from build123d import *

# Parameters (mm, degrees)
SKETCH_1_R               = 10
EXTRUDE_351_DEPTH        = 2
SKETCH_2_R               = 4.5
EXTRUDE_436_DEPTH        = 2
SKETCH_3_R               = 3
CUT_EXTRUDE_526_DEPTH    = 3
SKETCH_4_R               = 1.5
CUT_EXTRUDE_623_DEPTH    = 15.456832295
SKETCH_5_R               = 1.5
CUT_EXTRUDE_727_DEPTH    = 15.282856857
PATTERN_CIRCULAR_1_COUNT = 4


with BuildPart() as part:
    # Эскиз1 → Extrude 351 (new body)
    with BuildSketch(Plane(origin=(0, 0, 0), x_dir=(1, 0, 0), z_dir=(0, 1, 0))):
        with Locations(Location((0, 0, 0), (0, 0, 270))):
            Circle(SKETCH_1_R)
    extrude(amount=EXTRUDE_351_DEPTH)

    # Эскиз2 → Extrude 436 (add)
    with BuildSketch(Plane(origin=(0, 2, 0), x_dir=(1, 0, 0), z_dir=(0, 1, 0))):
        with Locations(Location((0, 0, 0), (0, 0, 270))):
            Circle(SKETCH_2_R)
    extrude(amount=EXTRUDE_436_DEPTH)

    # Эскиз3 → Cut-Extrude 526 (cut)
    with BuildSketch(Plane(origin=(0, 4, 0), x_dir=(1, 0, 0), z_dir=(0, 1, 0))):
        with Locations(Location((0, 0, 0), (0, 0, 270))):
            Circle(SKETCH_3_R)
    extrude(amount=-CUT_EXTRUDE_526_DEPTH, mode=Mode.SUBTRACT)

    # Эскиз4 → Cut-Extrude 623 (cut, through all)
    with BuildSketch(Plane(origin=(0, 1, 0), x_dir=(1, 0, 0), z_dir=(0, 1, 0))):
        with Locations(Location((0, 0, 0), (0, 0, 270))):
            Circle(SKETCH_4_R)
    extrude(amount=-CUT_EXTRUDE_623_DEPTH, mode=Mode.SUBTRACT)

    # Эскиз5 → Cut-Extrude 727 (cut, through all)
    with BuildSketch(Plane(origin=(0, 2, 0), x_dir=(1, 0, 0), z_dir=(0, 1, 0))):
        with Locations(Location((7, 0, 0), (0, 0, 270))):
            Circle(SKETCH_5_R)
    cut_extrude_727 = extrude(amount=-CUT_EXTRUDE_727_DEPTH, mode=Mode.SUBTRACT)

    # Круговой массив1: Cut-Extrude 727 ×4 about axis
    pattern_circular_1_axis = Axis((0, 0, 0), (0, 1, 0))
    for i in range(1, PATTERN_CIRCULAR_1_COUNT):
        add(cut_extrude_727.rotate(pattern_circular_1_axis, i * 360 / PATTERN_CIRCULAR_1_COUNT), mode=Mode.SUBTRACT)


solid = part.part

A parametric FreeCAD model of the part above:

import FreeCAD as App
import Part
import Sketcher

V = App.Vector

doc = App.newDocument("Part")
body = doc.addObject("PartDesign::Body", "Body")

# Sketch on XZ plane
sketch1 = body.newObject("Sketcher::SketchObject", "Sketch")
sketch1.AttachmentSupport = (doc.getObject("XZ_Plane"), [""])
sketch1.MapMode = "FlatFace"
sketch1.addGeometry(Part.Circle(V(0, 0, 0), V(0, 0, 1), 10), False)
sketch1.addConstraint([
    Sketcher.Constraint("Coincident", 0, 3, -1, 1),
    Sketcher.Constraint("Diameter", 0, 20.0),
])
pad1 = body.newObject("PartDesign::Pad", "Pad")
pad1.Profile = sketch1
pad1.Length = 2
pad1.Reversed = True

# Sketch on XZ plane
sketch2 = body.newObject("Sketcher::SketchObject", "Sketch001")
sketch2.AttachmentSupport = (doc.getObject("XZ_Plane"), [""])
sketch2.MapMode = "FlatFace"
sketch2.AttachmentOffset = App.Placement(V(0, 0, -2), App.Rotation())
sketch2.addGeometry(Part.Circle(V(0, 0, 0), V(0, 0, 1), 4.5), False)
sketch2.addConstraint([
    Sketcher.Constraint("Coincident", 0, 3, -1, 1),
    Sketcher.Constraint("Diameter", 0, 9.0),
])
pad2 = body.newObject("PartDesign::Pad", "Pad001")
pad2.Profile = sketch2
pad2.Length = 2
pad2.Reversed = True

# Sketch on XZ plane
sketch3 = body.newObject("Sketcher::SketchObject", "Sketch002")
sketch3.AttachmentSupport = (doc.getObject("XZ_Plane"), [""])
sketch3.MapMode = "FlatFace"
sketch3.AttachmentOffset = App.Placement(V(0, 0, -4), App.Rotation())
sketch3.addGeometry(Part.Circle(V(0, 0, 0), V(0, 0, 1), 3), False)
sketch3.addConstraint([
    Sketcher.Constraint("Coincident", 0, 3, -1, 1),
    Sketcher.Constraint("Diameter", 0, 6.0),
])
pocket1 = body.newObject("PartDesign::Pocket", "Pocket")
pocket1.Profile = sketch3
pocket1.Length = 3
pocket1.Reversed = True

# Sketch on XZ plane
sketch4 = body.newObject("Sketcher::SketchObject", "Sketch003")
sketch4.AttachmentSupport = (doc.getObject("XZ_Plane"), [""])
sketch4.MapMode = "FlatFace"
sketch4.AttachmentOffset = App.Placement(V(0, 0, -1), App.Rotation())
sketch4.addGeometry(Part.Circle(V(0, 0, 0), V(0, 0, 1), 1.5), False)
sketch4.addConstraint([
    Sketcher.Constraint("Coincident", 0, 3, -1, 1),
    Sketcher.Constraint("Diameter", 0, 3.0),
])
pocket2 = body.newObject("PartDesign::Pocket", "Pocket001")
pocket2.Profile = sketch4
pocket2.Type = "ThroughAll"
pocket2.Reversed = True

# Sketch on XZ plane
sketch5 = body.newObject("Sketcher::SketchObject", "Sketch004")
sketch5.AttachmentSupport = (doc.getObject("XZ_Plane"), [""])
sketch5.MapMode = "FlatFace"
sketch5.AttachmentOffset = App.Placement(V(0, 0, -2), App.Rotation())
sketch5.addGeometry(Part.Circle(V(7, 0, 0), V(0, 0, 1), 1.5), False)
sketch5.addConstraint([
    Sketcher.Constraint("PointOnObject", 0, 3, -1),
    Sketcher.Constraint("Diameter", 0, 3.0),
    Sketcher.Constraint("DistanceX", -1, 1, 0, 3, 7.0),
])
pocket3 = body.newObject("PartDesign::Pocket", "Pocket002")
pocket3.Profile = sketch5
pocket3.Type = "ThroughAll"
pocket3.Reversed = True
doc.recompute()

polarpattern = body.newObject("PartDesign::PolarPattern", "PolarPattern")
polarpattern.Originals = [pocket3]
polarpattern.Axis = (doc.getObject("Y_Axis"), [""])
polarpattern.Angle = 360
polarpattern.Occurrences = 4
body.Tip = polarpattern

doc.recompute()
